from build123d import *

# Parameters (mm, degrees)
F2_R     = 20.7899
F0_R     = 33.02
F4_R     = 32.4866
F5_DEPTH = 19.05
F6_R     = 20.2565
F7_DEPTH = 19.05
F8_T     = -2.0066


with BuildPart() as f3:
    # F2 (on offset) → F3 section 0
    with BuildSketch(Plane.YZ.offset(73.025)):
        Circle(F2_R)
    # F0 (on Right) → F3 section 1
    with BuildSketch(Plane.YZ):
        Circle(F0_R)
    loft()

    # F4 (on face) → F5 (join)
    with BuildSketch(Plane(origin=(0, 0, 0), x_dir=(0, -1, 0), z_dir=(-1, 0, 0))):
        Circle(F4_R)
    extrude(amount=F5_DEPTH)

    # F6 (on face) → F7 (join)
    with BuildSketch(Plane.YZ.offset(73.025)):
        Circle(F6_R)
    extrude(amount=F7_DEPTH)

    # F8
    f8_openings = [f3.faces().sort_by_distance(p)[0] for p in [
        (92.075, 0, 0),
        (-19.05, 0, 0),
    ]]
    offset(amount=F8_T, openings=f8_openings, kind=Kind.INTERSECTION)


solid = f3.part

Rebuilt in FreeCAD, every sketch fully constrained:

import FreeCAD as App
import Part
import Sketcher
Q = App.Units.Quantity


def faces_at(feature, points):
    """Names of the faces that lie closest to the given points."""
    faces = feature.Shape.Faces
    near = lambda p: min(range(len(faces)), key=lambda i: faces[i].distToShape(Part.Vertex(*p))[0])
    return sorted({f"Face{near(p) + 1}" for p in points})

doc = App.newDocument("Part")
params = doc.addObject("Spreadsheet::Sheet", "Params")
for row, (alias, value) in enumerate([
    ("sketch1_diameter", "1.637 in"),
    ("sketch2_diameter", "2.6 in"),
    ("sketch3_diameter", "2.558 in"),
    ("pad1_length", "0.75 in"),
    ("sketch4_diameter", "1.595 in"),
    ("pad2_length", "0.75 in"),
    ("thickness_wall", "0.079 in"),
], start=1):
    params.set(f"A{row}", alias)
    params.set(f"B{row}", "=" + value)
    params.setAlias(f"B{row}", alias)

body = doc.addObject("PartDesign::Body", "Body")

# Sketch on YZ plane
sketch1 = body.newObject("Sketcher::SketchObject", "Sketch")
sketch1.AttachmentSupport = (doc.getObject("YZ_Plane"), [""])
sketch1.MapMode = "FlatFace"
sketch1.AttachmentOffset = App.Placement(App.Vector(0, 0, 2.875 * 25.4), App.Rotation())
sketch1.addGeometry(Part.Circle(App.Vector(0, 0, 0), App.Vector(0, 0, 1), 21), False)
sketch1.addConstraint([
    Sketcher.Constraint("Coincident", 0, 3, -1, 1),
    Sketcher.Constraint("Diameter", 0, Q("1.637 in")),
])
sketch1.setExpression("Constraints[1]", "Params.sketch1_diameter")

# Sketch on YZ plane
sketch2 = body.newObject("Sketcher::SketchObject", "Sketch001")
sketch2.AttachmentSupport = (doc.getObject("YZ_Plane"), [""])
sketch2.MapMode = "FlatFace"
sketch2.addGeometry(Part.Circle(App.Vector(0, 0, 0), App.Vector(0, 0, 1), 33), False)
sketch2.addConstraint([
    Sketcher.Constraint("Coincident", 0, 3, -1, 1),
    Sketcher.Constraint("Diameter", 0, Q("2.6 in")),
])
sketch2.setExpression("Constraints[1]", "Params.sketch2_diameter")

additiveloft = body.newObject("PartDesign::AdditiveLoft", "AdditiveLoft")
additiveloft.Profile = sketch1
additiveloft.Sections = [sketch2]

# Sketch on YZ plane
sketch3 = body.newObject("Sketcher::SketchObject", "Sketch002")
sketch3.AttachmentSupport = (doc.getObject("YZ_Plane"), [""])
sketch3.MapMode = "FlatFace"
sketch3.addGeometry(Part.Circle(App.Vector(0, 0, 0), App.Vector(0, 0, 1), 32), False)
sketch3.addConstraint([
    Sketcher.Constraint("Coincident", 0, 3, -1, 1),
    Sketcher.Constraint("Diameter", 0, Q("2.558 in")),
])
sketch3.setExpression("Constraints[1]", "Params.sketch3_diameter")
pad1 = body.newObject("PartDesign::Pad", "Pad")
pad1.Profile = sketch3
pad1.setExpression("Length", "Params.pad1_length")
pad1.Reversed = True

# Sketch on YZ plane
sketch4 = body.newObject("Sketcher::SketchObject", "Sketch003")
sketch4.AttachmentSupport = (doc.getObject("YZ_Plane"), [""])
sketch4.MapMode = "FlatFace"
sketch4.AttachmentOffset = App.Placement(App.Vector(0, 0, 2.875 * 25.4), App.Rotation())
sketch4.addGeometry(Part.Circle(App.Vector(0, 0, 0), App.Vector(0, 0, 1), 20), False)
sketch4.addConstraint([
    Sketcher.Constraint("Coincident", 0, 3, -1, 1),
    Sketcher.Constraint("Diameter", 0, Q("1.595 in")),
])
sketch4.setExpression("Constraints[1]", "Params.sketch4_diameter")
pad2 = body.newObject("PartDesign::Pad", "Pad001")
pad2.Profile = sketch4
pad2.setExpression("Length", "Params.pad2_length")
doc.recompute()

thickness = body.newObject("PartDesign::Thickness", "Thickness")
thickness.Base = (pad2, faces_at(pad2, [(92.075, 0, 0), (-19.05, 0, 0)]))
thickness.setExpression("Value", "Params.thickness_wall")
thickness.Reversed = True
thickness.Join = "Intersection"

doc.recompute()
